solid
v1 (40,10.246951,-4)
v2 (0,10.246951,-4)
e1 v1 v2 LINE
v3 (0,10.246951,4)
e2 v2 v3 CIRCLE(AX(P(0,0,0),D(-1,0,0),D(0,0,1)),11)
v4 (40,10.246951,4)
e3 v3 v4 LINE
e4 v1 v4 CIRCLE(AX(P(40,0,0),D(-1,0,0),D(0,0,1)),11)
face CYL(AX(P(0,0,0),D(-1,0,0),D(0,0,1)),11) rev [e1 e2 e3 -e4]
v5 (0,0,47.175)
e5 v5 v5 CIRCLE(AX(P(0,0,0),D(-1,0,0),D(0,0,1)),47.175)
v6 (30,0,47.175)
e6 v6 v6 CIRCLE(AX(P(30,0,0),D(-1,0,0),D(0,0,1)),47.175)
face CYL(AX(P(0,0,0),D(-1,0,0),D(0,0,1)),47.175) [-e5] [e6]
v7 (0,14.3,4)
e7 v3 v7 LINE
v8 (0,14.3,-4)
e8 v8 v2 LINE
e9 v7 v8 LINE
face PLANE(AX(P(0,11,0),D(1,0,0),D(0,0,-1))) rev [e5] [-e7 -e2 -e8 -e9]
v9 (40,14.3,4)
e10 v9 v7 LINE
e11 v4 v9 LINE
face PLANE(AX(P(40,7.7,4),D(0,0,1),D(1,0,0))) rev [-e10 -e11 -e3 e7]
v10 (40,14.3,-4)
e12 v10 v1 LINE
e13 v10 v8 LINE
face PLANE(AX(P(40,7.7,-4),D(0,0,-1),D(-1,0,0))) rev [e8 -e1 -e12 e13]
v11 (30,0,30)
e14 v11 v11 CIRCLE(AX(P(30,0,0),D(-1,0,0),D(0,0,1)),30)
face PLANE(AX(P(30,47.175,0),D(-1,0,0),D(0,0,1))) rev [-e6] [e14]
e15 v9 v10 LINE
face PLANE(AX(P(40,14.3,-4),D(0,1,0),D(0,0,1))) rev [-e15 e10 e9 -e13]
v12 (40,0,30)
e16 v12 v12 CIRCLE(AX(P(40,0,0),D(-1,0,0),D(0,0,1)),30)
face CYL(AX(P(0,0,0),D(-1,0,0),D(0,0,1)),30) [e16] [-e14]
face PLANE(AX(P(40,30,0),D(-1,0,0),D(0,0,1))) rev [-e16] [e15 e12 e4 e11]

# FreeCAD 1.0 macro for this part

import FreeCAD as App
import Part
import Sketcher
from FreeCAD import Vector

doc = App.newDocument("Part")
body = doc.addObject("PartDesign::Body", "Body")

sketch1 = body.newObject("Sketcher::SketchObject", "Sketch")
sketch1.AttachmentSupport = (doc.getObject("XY_Plane"), [""])
sketch1.MapMode = "FlatFace"
sketch1.addGeometry([
    Part.LineSegment(Vector(0, 47, 0), Vector(0, 11, 0)),
    Part.LineSegment(Vector(0, 11, 0), Vector(40, 11, 0)),
    Part.LineSegment(Vector(40, 11, 0), Vector(40, 30, 0)),
    Part.LineSegment(Vector(40, 30, 0), Vector(30, 30, 0)),
    Part.LineSegment(Vector(30, 30, 0), Vector(30, 47, 0)),
    Part.LineSegment(Vector(30, 47, 0), Vector(0, 47, 0)),
], False)
sketch1.addConstraint([
    Sketcher.Constraint("Coincident", 0, 2, 1, 1),
    Sketcher.Constraint("Coincident", 1, 2, 2, 1),
    Sketcher.Constraint("Coincident", 2, 2, 3, 1),
    Sketcher.Constraint("Coincident", 3, 2, 4, 1),
    Sketcher.Constraint("Coincident", 4, 2, 5, 1),
    Sketcher.Constraint("Coincident", 5, 2, 0, 1),
    Sketcher.Constraint("Vertical", 0),
    Sketcher.Constraint("Horizontal", 1),
    Sketcher.Constraint("Vertical", 2),
    Sketcher.Constraint("Horizontal", 3),
    Sketcher.Constraint("Vertical", 4),
    Sketcher.Constraint("Horizontal", 5),
    Sketcher.Constraint("PointOnObject", 0, 2, -2),
    Sketcher.Constraint("DistanceX", 1, 1, 1, 2, 40.0),
    Sketcher.Constraint("DistanceX", 3, 2, 3, 1, 10.0),
    Sketcher.Constraint("DistanceY", 2, 1, 2, 2, 19.0),
    Sketcher.Constraint("DistanceY", -1, 1, 0, 2, 11.0),
    Sketcher.Constraint("DistanceY", 0, 2, 0, 1, 36.175),
])
revolution = body.newObject("PartDesign::Revolution", "Revolution")
revolution.Profile = sketch1
revolution.ReferenceAxis = (sketch1, ["H_Axis"])
revolution.Angle = 360

sketch2 = body.newObject("Sketcher::SketchObject", "Sketch001")
sketch2.AttachmentSupport = (doc.getObject("YZ_Plane"), [""])
sketch2.MapMode = "FlatFace"
sketch2.addGeometry([
    Part.LineSegment(Vector(14, -4, 0), Vector(8, -4, 0)),
    Part.LineSegment(Vector(8, -4, 0), Vector(8, 4, 0)),
    Part.LineSegment(Vector(8, 4, 0), Vector(14, 4, 0)),
    Part.LineSegment(Vector(14, 4, 0), Vector(14, -4, 0)),
], False)
sketch2.addConstraint([
    Sketcher.Constraint("Coincident", 0, 2, 1, 1),
    Sketcher.Constraint("Coincident", 1, 2, 2, 1),
    Sketcher.Constraint("Coincident", 2, 2, 3, 1),
    Sketcher.Constraint("Coincident", 3, 2, 0, 1),
    Sketcher.Constraint("Horizontal", 0),
    Sketcher.Constraint("Vertical", 1),
    Sketcher.Constraint("Horizontal", 2),
    Sketcher.Constraint("Vertical", 3),
    Sketcher.Constraint("DistanceY", 1, 1, 1, 2, 8.0),
    Sketcher.Constraint("DistanceX", 0, 2, 0, 1, 6.6),
    Sketcher.Constraint("DistanceY", 0, 2, -1, 1, 4.0),
    Sketcher.Constraint("DistanceX", -1, 1, 0, 2, 7.7),
])
pocket1 = body.newObject("PartDesign::Pocket", "Pocket")
pocket1.Profile = sketch2
pocket1.Type = "ThroughAll"
pocket1.Reversed = True

doc.recompute()
